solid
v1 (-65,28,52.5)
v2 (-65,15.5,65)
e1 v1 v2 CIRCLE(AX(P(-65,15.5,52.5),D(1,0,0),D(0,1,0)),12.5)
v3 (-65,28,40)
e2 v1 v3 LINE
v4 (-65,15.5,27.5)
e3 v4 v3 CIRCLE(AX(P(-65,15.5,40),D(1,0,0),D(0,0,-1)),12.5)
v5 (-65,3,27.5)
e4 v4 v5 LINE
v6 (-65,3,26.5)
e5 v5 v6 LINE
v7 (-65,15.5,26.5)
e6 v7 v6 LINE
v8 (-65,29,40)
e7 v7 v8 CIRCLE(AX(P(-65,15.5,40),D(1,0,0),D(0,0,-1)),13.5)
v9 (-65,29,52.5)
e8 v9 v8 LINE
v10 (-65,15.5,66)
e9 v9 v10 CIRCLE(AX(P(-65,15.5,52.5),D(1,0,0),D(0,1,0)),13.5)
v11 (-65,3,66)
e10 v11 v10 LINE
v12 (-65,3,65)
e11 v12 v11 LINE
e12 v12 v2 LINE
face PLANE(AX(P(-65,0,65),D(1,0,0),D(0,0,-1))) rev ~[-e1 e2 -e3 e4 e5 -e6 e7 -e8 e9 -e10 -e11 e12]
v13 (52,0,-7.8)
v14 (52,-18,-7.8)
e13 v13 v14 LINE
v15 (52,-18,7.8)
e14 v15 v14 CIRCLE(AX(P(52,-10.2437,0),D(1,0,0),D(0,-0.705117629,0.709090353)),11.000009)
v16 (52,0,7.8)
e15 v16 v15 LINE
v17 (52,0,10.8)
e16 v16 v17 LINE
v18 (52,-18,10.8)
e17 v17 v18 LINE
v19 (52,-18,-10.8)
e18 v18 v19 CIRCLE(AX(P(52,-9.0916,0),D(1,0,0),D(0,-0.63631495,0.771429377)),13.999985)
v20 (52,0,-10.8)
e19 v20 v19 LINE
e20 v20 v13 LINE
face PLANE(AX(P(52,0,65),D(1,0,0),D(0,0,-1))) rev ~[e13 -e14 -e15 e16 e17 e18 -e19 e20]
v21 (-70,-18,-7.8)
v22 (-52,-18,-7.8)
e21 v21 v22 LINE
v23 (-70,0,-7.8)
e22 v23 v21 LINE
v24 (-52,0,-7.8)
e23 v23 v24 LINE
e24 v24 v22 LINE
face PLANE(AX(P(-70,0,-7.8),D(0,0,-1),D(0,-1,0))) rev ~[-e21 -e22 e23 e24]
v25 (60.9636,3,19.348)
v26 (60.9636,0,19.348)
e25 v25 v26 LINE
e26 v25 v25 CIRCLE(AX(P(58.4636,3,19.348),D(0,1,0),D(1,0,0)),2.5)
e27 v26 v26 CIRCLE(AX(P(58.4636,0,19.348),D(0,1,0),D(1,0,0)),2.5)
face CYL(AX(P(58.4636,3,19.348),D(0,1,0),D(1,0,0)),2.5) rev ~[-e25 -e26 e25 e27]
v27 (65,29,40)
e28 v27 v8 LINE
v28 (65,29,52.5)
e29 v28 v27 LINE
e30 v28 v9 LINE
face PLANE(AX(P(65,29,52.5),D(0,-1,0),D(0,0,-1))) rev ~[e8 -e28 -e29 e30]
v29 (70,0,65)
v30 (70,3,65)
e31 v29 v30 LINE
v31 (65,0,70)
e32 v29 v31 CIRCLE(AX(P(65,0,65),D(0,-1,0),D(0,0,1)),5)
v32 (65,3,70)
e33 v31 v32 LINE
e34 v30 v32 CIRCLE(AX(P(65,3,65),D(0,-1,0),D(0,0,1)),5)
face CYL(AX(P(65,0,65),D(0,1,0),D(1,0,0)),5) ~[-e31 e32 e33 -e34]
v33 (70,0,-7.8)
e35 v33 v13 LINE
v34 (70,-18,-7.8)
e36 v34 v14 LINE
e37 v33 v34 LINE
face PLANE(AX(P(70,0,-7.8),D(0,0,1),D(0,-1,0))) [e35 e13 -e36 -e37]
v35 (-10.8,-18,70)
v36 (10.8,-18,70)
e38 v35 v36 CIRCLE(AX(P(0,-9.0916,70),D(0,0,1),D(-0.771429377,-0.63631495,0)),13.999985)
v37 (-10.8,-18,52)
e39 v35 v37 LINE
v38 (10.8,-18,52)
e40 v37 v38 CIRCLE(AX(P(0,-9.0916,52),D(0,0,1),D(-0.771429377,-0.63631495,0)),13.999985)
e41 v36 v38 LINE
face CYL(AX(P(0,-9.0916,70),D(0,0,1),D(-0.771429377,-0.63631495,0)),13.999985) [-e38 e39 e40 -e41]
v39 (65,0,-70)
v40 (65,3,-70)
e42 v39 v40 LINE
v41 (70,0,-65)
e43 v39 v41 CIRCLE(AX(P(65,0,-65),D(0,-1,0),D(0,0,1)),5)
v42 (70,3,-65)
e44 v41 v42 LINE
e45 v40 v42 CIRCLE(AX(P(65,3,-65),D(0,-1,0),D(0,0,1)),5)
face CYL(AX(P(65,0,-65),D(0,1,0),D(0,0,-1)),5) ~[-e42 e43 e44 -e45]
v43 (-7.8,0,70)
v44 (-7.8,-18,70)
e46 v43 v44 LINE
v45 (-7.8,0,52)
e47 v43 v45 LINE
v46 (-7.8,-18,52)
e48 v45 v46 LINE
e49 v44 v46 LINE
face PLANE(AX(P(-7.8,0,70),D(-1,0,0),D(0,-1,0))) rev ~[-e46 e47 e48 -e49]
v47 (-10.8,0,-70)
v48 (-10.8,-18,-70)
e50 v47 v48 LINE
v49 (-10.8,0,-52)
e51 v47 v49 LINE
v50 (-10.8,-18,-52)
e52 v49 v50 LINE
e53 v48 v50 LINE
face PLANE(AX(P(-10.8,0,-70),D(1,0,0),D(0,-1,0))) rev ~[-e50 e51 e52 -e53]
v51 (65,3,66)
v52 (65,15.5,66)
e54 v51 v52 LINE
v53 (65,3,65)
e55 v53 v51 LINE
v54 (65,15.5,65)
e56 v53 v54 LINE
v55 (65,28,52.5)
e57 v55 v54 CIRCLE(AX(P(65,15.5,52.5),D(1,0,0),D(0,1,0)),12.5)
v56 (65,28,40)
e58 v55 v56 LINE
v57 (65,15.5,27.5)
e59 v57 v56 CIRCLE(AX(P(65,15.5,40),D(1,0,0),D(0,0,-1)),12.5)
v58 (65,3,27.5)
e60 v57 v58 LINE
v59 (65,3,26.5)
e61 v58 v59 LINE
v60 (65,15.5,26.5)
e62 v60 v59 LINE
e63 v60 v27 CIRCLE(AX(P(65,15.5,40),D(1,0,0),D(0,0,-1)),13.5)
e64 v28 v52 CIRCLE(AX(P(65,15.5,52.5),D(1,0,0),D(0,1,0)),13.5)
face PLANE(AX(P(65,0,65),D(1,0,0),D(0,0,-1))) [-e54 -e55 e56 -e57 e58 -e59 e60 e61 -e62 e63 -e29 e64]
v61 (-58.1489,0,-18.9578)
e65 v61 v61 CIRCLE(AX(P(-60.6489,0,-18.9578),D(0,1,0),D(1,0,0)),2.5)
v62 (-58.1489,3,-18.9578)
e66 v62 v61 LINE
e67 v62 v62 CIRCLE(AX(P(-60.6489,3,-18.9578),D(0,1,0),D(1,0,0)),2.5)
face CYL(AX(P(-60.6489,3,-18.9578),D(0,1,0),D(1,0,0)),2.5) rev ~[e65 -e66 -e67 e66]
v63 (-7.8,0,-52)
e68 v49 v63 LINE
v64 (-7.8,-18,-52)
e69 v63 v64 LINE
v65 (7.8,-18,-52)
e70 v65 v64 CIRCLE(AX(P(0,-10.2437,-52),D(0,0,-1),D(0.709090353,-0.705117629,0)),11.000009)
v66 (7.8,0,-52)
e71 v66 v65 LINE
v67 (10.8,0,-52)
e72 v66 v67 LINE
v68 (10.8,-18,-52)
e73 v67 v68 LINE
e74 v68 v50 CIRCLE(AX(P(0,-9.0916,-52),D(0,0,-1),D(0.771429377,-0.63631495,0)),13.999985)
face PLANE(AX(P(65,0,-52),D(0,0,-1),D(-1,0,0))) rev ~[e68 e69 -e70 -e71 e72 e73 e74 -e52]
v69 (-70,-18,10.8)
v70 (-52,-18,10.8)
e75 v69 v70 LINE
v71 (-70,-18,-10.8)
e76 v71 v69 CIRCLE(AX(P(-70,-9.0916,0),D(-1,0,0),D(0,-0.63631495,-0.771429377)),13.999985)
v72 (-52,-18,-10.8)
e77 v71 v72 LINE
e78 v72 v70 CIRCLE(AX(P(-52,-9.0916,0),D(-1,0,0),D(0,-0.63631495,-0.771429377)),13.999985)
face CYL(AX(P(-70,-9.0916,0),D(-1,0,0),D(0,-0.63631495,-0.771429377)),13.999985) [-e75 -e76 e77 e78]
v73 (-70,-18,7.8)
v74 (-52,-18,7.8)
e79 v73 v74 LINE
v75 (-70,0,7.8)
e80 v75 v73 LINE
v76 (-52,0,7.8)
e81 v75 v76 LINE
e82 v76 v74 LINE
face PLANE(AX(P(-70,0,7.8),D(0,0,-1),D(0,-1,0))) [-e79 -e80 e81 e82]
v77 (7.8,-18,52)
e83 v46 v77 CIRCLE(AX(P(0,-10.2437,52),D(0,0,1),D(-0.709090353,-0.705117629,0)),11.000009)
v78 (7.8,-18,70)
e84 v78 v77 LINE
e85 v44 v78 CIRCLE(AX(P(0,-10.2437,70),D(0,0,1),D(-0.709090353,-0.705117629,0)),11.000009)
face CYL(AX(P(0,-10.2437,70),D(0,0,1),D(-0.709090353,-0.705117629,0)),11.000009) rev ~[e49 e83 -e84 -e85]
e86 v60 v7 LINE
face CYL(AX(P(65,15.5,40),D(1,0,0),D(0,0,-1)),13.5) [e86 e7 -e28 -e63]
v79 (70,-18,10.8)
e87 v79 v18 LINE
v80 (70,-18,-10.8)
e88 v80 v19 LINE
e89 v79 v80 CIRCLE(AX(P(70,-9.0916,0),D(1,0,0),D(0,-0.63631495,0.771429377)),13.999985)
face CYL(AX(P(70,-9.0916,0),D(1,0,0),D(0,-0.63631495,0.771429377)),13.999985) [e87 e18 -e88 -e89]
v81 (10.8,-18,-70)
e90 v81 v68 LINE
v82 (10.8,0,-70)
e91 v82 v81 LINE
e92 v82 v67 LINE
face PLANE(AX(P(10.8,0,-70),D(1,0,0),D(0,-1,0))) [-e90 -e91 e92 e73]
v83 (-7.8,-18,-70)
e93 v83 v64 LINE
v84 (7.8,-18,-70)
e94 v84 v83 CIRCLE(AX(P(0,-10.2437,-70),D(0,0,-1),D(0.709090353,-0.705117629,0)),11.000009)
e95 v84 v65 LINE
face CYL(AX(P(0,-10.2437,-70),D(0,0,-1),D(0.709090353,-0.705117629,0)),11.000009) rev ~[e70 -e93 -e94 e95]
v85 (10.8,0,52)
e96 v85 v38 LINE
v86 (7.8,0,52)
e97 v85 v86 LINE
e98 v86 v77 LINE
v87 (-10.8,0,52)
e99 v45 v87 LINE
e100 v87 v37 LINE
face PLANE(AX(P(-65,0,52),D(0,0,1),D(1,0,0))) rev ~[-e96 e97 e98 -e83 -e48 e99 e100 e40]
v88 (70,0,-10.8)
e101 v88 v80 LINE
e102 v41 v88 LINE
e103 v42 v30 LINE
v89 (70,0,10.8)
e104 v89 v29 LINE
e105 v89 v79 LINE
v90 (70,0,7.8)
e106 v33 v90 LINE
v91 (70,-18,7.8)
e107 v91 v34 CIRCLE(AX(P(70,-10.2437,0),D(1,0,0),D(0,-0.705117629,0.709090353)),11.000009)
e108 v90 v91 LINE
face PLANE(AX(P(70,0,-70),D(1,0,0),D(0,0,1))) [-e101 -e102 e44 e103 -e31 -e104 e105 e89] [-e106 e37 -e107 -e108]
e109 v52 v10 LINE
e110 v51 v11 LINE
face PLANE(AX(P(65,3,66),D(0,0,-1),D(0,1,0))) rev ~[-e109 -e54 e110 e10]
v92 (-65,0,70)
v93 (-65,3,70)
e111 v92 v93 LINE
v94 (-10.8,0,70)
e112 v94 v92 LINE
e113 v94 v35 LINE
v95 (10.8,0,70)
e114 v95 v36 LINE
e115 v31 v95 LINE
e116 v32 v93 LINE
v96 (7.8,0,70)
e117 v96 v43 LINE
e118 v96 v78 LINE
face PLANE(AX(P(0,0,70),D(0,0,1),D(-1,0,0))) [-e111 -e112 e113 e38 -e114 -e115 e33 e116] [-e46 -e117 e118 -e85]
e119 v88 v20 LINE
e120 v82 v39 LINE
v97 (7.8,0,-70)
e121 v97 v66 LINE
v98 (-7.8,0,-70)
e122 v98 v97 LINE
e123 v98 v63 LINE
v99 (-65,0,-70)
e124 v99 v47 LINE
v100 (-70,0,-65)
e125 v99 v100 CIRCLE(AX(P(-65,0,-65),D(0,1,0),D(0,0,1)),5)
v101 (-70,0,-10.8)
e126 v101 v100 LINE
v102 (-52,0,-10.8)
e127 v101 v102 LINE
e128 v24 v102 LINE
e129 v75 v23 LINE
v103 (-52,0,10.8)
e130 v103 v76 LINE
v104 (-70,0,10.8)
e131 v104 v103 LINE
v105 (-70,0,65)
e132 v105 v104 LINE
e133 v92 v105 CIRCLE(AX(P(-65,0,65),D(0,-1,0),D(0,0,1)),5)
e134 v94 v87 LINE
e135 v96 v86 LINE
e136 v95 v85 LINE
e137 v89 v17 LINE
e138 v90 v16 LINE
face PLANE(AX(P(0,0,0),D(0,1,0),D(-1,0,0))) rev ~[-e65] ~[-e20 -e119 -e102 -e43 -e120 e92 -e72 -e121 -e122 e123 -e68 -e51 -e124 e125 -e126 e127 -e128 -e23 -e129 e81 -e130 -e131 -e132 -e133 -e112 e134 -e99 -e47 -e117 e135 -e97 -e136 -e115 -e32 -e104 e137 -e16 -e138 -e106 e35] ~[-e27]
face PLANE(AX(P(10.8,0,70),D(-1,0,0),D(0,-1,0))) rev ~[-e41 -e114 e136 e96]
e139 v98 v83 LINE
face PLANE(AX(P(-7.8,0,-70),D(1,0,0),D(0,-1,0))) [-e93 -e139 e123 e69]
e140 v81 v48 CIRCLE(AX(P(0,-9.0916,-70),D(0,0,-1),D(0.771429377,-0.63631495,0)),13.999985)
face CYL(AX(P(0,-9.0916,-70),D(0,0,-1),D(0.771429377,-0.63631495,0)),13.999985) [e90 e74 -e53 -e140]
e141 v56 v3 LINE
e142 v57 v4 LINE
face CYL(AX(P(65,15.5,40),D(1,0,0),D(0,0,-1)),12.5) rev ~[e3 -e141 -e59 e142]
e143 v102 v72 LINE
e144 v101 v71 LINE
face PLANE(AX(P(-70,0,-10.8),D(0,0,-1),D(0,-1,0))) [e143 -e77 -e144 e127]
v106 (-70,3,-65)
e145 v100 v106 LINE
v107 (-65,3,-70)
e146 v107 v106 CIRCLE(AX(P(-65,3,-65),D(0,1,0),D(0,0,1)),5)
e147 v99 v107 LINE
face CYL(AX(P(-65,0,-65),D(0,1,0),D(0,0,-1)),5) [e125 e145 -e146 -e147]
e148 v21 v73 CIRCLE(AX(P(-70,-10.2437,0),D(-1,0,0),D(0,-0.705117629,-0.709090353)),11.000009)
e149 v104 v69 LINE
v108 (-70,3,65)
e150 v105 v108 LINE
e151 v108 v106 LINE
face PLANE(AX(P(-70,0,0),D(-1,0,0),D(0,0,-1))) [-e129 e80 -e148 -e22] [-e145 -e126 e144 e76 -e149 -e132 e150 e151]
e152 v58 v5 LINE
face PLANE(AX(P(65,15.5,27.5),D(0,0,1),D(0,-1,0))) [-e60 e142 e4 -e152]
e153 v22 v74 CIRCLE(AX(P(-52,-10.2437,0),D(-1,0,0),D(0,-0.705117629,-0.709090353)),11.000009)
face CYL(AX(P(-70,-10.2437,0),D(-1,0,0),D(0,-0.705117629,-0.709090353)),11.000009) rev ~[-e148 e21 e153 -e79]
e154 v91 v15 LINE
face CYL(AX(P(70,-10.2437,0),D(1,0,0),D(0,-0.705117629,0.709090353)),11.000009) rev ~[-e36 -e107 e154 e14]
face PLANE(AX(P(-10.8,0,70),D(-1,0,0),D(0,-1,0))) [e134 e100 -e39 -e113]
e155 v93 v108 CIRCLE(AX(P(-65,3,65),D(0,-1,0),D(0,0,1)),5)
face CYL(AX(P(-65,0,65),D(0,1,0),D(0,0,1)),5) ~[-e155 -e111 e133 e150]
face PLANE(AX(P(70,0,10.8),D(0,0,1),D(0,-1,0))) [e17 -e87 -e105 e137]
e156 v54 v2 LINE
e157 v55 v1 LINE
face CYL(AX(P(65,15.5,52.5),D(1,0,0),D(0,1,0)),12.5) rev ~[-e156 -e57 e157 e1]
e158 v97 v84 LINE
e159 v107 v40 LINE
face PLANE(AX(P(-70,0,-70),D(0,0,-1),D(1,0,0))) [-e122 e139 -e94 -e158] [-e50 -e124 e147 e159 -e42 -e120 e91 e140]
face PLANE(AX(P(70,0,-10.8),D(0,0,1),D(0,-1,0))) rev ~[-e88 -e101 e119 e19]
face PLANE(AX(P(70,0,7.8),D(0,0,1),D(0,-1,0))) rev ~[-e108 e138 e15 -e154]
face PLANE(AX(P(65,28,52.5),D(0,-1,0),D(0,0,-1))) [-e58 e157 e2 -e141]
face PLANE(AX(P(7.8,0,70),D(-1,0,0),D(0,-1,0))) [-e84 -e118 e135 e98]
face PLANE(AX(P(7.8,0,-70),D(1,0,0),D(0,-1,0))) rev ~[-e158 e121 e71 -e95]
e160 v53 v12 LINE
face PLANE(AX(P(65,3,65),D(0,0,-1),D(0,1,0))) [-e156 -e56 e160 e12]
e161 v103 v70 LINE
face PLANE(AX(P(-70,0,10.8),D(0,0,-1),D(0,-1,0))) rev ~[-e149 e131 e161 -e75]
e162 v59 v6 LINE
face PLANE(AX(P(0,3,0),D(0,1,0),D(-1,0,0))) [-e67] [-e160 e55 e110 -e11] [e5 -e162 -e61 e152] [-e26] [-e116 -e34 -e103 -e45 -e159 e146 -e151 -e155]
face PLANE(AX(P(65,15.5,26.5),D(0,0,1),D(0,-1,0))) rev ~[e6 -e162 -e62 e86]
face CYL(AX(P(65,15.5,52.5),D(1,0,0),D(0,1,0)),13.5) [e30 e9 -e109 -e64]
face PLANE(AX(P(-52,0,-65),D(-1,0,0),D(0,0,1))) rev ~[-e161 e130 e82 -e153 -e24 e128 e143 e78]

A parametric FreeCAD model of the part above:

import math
import FreeCAD as App
import Part
import Sketcher
Q = App.Units.Quantity


def edges_at(feature, points):
    """Names of the edges that pass closest to the given points."""
    edges = feature.Shape.Edges
    near = lambda p: min(range(len(edges)), key=lambda i: edges[i].distToShape(Part.Vertex(*p))[0])
    return sorted({f"Edge{near(p) + 1}" for p in points})


def add_polygon(sketch, points):
    """Adds a closed chain of lines whose ends are joined by coincident constraints."""
    first, n = sketch.GeometryCount, len(points)
    for a, b in zip(points, points[1:] + points[:1]):
        sketch.addGeometry(Part.LineSegment(App.Vector(*a, 0), App.Vector(*b, 0)), False)
    for i in range(n):
        sketch.addConstraint(Sketcher.Constraint("Coincident", first + i, 2, first + (i + 1) % n, 1))

doc = App.newDocument("Part")
body = doc.addObject("PartDesign::Body", "Body")

sketch1 = doc.addObject("Sketcher::SketchObject", "Sketch")
body.addObject(sketch1)
sketch1.AttachmentSupport = (doc.XZ_Plane, [""])
sketch1.MapMode = "FlatFace"
add_polygon(sketch1, [(-70, -70), (-70, 70), (70, 70), (70, -70)])
sketch1.addConstraint([
    Sketcher.Constraint("Vertical", 0),
    Sketcher.Constraint("Horizontal", 1),
    Sketcher.Constraint("Vertical", 2),
    Sketcher.Constraint("Horizontal", 3),
    Sketcher.Constraint("Symmetric", 0, 2, 2, 2, -1, 1),
    Sketcher.Constraint("Equal", 3, 0),
    Sketcher.Constraint("DistanceX", 1, 1, 1, 2, Q("140 mm")),
])
pad1 = doc.addObject("PartDesign::Pad", "Pad")
body.addObject(pad1)
pad1.Profile = sketch1
pad1.Length = 3
pad1.Reversed = True
doc.recompute()

fillet = doc.addObject("PartDesign::Fillet", "Fillet")
body.addObject(fillet)
fillet.Base = (pad1, edges_at(pad1, [(70, 1.5, 70), (70, 1.5, -70), (-70, 1.5, 70)]))
fillet.Radius = 5
doc.recompute()

fillet2 = doc.addObject("PartDesign::Fillet", "Fillet001")
body.addObject(fillet2)
fillet2.Base = (fillet, edges_at(fillet, [(-70, 1.5, -70)]))
fillet2.Radius = 5

sketch2 = doc.addObject("Sketcher::SketchObject", "Sketch001")
body.addObject(sketch2)
sketch2.AttachmentSupport = (doc.YZ_Plane, [""])
sketch2.MapMode = "FlatFace"
sketch2.AttachmentOffset = App.Placement(App.Vector(0, 0, 65), App.Rotation())
sketch2.addGeometry([
    Part.LineSegment(App.Vector(3, 66, 0), App.Vector(3, 65, 0)),
    Part.LineSegment(App.Vector(3, 65, 0), App.Vector(15.5, 65, 0)),
    Part.ArcOfCircle(Part.Circle(App.Vector(15.5, 52.5, 0), App.Vector(0, 0, 1), 12.5), math.radians(0), math.radians(90)),
    Part.LineSegment(App.Vector(28, 52.5, 0), App.Vector(28, 40, 0)),
    Part.ArcOfCircle(Part.Circle(App.Vector(15.5, 40, 0), App.Vector(0, 0, 1), 12.5), math.radians(-90), math.radians(0)),
    Part.LineSegment(App.Vector(15.5, 27.5, 0), App.Vector(3, 27.5, 0)),
    Part.LineSegment(App.Vector(3, 27.5, 0), App.Vector(3, 26.5, 0)),
    Part.LineSegment(App.Vector(3, 26.5, 0), App.Vector(15.5, 26.5, 0)),
    Part.ArcOfCircle(Part.Circle(App.Vector(15.5, 40, 0), App.Vector(0, 0, 1), 13.5), math.radians(-90), math.radians(0)),
    Part.LineSegment(App.Vector(29, 40, 0), App.Vector(29, 52.5, 0)),
    Part.ArcOfCircle(Part.Circle(App.Vector(15.5, 52.5, 0), App.Vector(0, 0, 1), 13.5), math.radians(0), math.radians(90)),
    Part.LineSegment(App.Vector(15.5, 66, 0), App.Vector(3, 66, 0)),
], False)
sketch2.addConstraint([
    Sketcher.Constraint("Coincident", 0, 2, 1, 1),
    Sketcher.Constraint("Tangent", 1, 2, 2, 2),
    Sketcher.Constraint("Tangent", 2, 1, 3, 1),
    Sketcher.Constraint("Tangent", 3, 2, 4, 2),
    Sketcher.Constraint("Tangent", 4, 1, 5, 1),
    Sketcher.Constraint("Coincident", 5, 2, 6, 1),
    Sketcher.Constraint("Coincident", 6, 2, 7, 1),
    Sketcher.Constraint("Tangent", 7, 2, 8, 1),
    Sketcher.Constraint("Tangent", 8, 2, 9, 1),
    Sketcher.Constraint("Tangent", 9, 2, 10, 1),
    Sketcher.Constraint("Tangent", 10, 2, 11, 1),
    Sketcher.Constraint("Coincident", 11, 2, 0, 1),
    Sketcher.Constraint("Vertical", 0),
    Sketcher.Constraint("Horizontal", 1),
    Sketcher.Constraint("Vertical", 3),
    Sketcher.Constraint("Horizontal", 5),
    Sketcher.Constraint("Vertical", 6),
    Sketcher.Constraint("Horizontal", 7),
    Sketcher.Constraint("Vertical", 9),
    Sketcher.Constraint("Horizontal", 11),
    Sketcher.Constraint("Coincident", 8, 3, 4, 3),
    Sketcher.Constraint("Coincident", 10, 3, 2, 3),
    Sketcher.Constraint("Equal", 2, 4),
    Sketcher.Constraint("Vertical", 0, 2, 5, 2),
    Sketcher.Constraint("Equal", 11, 3),
    Sketcher.Constraint("Radius", 2, Q("12.5 mm")),
    Sketcher.Constraint("DistanceY", 0, 2, 0, 1, Q("1 mm")),
    Sketcher.Constraint("DistanceX", 1, 1, 1, 2, Q("12.5 mm")),
    Sketcher.Constraint("DistanceY", -1, 1, 4, 3, Q("40 mm")),
    Sketcher.Constraint("DistanceX", -1, 1, 0, 2, Q("3 mm")),
])
pad2 = doc.addObject("PartDesign::Pad", "Pad001")
body.addObject(pad2)
pad2.Profile = sketch2
pad2.Length = 130
pad2.Reversed = True

sketch3 = doc.addObject("Sketcher::SketchObject", "Sketch002")
body.addObject(sketch3)
sketch3.AttachmentSupport = (doc.YZ_Plane, [""])
sketch3.MapMode = "FlatFace"
sketch3.AttachmentOffset = App.Placement(App.Vector(0, 0, 70), App.Rotation())
sketch3.addGeometry([
    Part.LineSegment(App.Vector(-18, 7.8, 0), App.Vector(0, 7.8, 0)),
    Part.LineSegment(App.Vector(0, 7.8, 0), App.Vector(0, 10.8, 0)),
    Part.LineSegment(App.Vector(0, 10.8, 0), App.Vector(-18, 10.8, 0)),
    Part.ArcOfCircle(Part.Circle(App.Vector(-9.1, 0, 0), App.Vector(0, 0, 1), 14), math.radians(130), math.radians(230)),
    Part.LineSegment(App.Vector(-18, -10.8, 0), App.Vector(0, -10.8, 0)),
    Part.LineSegment(App.Vector(0, -10.8, 0), App.Vector(0, -7.8, 0)),
    Part.LineSegment(App.Vector(0, -7.8, 0), App.Vector(-18, -7.8, 0)),
    Part.ArcOfCircle(Part.Circle(App.Vector(-10.2, 0, 0), App.Vector(0, 0, 1), 11), math.radians(135), math.radians(225)),
], False)
sketch3.addConstraint([
    Sketcher.Constraint("Coincident", 0, 2, 1, 1),
    Sketcher.Constraint("Coincident", 1, 2, 2, 1),
    Sketcher.Constraint("Coincident", 2, 2, 3, 1),
    Sketcher.Constraint("Coincident", 3, 2, 4, 1),
    Sketcher.Constraint("Coincident", 4, 2, 5, 1),
    Sketcher.Constraint("Coincident", 5, 2, 6, 1),
    Sketcher.Constraint("Coincident", 6, 2, 7, 2),
    Sketcher.Constraint("Coincident", 7, 1, 0, 1),
    Sketcher.Constraint("Horizontal", 0),
    Sketcher.Constraint("Vertical", 1),
    Sketcher.Constraint("Horizontal", 2),
    Sketcher.Constraint("Horizontal", 4),
    Sketcher.Constraint("Vertical", 5),
    Sketcher.Constraint("Horizontal", 6),
    Sketcher.Constraint("Symmetric", 1, 2, 4, 2, -1, 1),
    Sketcher.Constraint("Symmetric", 0, 2, 5, 2, -1),
    Sketcher.Constraint("PointOnObject", 3, 3, -1),
    Sketcher.Constraint("PointOnObject", 7, 3, -1),
    Sketcher.Constraint("Vertical", 3, 2, 6, 2),
    Sketcher.Constraint("DistanceX", 0, 1, 0, 2, Q("18 mm")),
    Sketcher.Constraint("DistanceY", 1, 1, 1, 2, Q("3 mm")),
    Sketcher.Constraint("Radius", 3, Q("14 mm")),
    Sketcher.Constraint("Radius", 7, Q("11 mm")),
    Sketcher.Constraint("DistanceY", -1, 1, 0, 2, Q("7.8 mm")),
])
pad3 = doc.addObject("PartDesign::Pad", "Pad002")
body.addObject(pad3)
pad3.Profile = sketch3
pad3.Length = 18
pad3.Reversed = True
doc.recompute()

polarpattern = doc.addObject("PartDesign::PolarPattern", "PolarPattern")
body.addObject(polarpattern)
polarpattern.Originals = [pad3]
polarpattern.Axis = (doc.Y_Axis, [""])
polarpattern.Angle = 360
polarpattern.Occurrences = 4
body.Tip = polarpattern

sketch4 = doc.addObject("Sketcher::SketchObject", "Sketch003")
body.addObject(sketch4)
sketch4.AttachmentSupport = (doc.XZ_Plane, [""])
sketch4.MapMode = "FlatFace"
sketch4.AttachmentOffset = App.Placement(App.Vector(0, 0, -3), App.Rotation())
sketch4.addGeometry(Part.Circle(App.Vector(58.5, 19.3, 0), App.Vector(0, 0, 1), 2.5), False)
sketch4.addConstraint([
    Sketcher.Constraint("Diameter", 0, Q("5 mm")),
    Sketcher.Constraint("DistanceY", -1, 1, 0, 3, Q("19.348 mm")),
    Sketcher.Constraint("DistanceX", -1, 1, 0, 3, Q("58.4636 mm")),
])
pocket1 = doc.addObject("PartDesign::Pocket", "Pocket")
body.addObject(pocket1)
pocket1.Profile = sketch4
pocket1.Length = 3
pocket1.Reversed = True

sketch5 = doc.addObject("Sketcher::SketchObject", "Sketch004")
body.addObject(sketch5)
sketch5.AttachmentSupport = (doc.XZ_Plane, [""])
sketch5.MapMode = "FlatFace"
sketch5.AttachmentOffset = App.Placement(App.Vector(0, 0, -3), App.Rotation())
sketch5.addGeometry(Part.Circle(App.Vector(-60.6, -19, 0), App.Vector(0, 0, 1), 2.5), False)
sketch5.addConstraint([
    Sketcher.Constraint("Diameter", 0, Q("5 mm")),
    Sketcher.Constraint("DistanceX", 0, 3, -1, 1, Q("60.649 mm")),
    Sketcher.Constraint("DistanceY", 0, 3, -1, 1, Q("18.9578 mm")),
])
pocket2 = doc.addObject("PartDesign::Pocket", "Pocket001")
body.addObject(pocket2)
pocket2.Profile = sketch5
pocket2.Length = 3
pocket2.Reversed = True

doc.recompute()
